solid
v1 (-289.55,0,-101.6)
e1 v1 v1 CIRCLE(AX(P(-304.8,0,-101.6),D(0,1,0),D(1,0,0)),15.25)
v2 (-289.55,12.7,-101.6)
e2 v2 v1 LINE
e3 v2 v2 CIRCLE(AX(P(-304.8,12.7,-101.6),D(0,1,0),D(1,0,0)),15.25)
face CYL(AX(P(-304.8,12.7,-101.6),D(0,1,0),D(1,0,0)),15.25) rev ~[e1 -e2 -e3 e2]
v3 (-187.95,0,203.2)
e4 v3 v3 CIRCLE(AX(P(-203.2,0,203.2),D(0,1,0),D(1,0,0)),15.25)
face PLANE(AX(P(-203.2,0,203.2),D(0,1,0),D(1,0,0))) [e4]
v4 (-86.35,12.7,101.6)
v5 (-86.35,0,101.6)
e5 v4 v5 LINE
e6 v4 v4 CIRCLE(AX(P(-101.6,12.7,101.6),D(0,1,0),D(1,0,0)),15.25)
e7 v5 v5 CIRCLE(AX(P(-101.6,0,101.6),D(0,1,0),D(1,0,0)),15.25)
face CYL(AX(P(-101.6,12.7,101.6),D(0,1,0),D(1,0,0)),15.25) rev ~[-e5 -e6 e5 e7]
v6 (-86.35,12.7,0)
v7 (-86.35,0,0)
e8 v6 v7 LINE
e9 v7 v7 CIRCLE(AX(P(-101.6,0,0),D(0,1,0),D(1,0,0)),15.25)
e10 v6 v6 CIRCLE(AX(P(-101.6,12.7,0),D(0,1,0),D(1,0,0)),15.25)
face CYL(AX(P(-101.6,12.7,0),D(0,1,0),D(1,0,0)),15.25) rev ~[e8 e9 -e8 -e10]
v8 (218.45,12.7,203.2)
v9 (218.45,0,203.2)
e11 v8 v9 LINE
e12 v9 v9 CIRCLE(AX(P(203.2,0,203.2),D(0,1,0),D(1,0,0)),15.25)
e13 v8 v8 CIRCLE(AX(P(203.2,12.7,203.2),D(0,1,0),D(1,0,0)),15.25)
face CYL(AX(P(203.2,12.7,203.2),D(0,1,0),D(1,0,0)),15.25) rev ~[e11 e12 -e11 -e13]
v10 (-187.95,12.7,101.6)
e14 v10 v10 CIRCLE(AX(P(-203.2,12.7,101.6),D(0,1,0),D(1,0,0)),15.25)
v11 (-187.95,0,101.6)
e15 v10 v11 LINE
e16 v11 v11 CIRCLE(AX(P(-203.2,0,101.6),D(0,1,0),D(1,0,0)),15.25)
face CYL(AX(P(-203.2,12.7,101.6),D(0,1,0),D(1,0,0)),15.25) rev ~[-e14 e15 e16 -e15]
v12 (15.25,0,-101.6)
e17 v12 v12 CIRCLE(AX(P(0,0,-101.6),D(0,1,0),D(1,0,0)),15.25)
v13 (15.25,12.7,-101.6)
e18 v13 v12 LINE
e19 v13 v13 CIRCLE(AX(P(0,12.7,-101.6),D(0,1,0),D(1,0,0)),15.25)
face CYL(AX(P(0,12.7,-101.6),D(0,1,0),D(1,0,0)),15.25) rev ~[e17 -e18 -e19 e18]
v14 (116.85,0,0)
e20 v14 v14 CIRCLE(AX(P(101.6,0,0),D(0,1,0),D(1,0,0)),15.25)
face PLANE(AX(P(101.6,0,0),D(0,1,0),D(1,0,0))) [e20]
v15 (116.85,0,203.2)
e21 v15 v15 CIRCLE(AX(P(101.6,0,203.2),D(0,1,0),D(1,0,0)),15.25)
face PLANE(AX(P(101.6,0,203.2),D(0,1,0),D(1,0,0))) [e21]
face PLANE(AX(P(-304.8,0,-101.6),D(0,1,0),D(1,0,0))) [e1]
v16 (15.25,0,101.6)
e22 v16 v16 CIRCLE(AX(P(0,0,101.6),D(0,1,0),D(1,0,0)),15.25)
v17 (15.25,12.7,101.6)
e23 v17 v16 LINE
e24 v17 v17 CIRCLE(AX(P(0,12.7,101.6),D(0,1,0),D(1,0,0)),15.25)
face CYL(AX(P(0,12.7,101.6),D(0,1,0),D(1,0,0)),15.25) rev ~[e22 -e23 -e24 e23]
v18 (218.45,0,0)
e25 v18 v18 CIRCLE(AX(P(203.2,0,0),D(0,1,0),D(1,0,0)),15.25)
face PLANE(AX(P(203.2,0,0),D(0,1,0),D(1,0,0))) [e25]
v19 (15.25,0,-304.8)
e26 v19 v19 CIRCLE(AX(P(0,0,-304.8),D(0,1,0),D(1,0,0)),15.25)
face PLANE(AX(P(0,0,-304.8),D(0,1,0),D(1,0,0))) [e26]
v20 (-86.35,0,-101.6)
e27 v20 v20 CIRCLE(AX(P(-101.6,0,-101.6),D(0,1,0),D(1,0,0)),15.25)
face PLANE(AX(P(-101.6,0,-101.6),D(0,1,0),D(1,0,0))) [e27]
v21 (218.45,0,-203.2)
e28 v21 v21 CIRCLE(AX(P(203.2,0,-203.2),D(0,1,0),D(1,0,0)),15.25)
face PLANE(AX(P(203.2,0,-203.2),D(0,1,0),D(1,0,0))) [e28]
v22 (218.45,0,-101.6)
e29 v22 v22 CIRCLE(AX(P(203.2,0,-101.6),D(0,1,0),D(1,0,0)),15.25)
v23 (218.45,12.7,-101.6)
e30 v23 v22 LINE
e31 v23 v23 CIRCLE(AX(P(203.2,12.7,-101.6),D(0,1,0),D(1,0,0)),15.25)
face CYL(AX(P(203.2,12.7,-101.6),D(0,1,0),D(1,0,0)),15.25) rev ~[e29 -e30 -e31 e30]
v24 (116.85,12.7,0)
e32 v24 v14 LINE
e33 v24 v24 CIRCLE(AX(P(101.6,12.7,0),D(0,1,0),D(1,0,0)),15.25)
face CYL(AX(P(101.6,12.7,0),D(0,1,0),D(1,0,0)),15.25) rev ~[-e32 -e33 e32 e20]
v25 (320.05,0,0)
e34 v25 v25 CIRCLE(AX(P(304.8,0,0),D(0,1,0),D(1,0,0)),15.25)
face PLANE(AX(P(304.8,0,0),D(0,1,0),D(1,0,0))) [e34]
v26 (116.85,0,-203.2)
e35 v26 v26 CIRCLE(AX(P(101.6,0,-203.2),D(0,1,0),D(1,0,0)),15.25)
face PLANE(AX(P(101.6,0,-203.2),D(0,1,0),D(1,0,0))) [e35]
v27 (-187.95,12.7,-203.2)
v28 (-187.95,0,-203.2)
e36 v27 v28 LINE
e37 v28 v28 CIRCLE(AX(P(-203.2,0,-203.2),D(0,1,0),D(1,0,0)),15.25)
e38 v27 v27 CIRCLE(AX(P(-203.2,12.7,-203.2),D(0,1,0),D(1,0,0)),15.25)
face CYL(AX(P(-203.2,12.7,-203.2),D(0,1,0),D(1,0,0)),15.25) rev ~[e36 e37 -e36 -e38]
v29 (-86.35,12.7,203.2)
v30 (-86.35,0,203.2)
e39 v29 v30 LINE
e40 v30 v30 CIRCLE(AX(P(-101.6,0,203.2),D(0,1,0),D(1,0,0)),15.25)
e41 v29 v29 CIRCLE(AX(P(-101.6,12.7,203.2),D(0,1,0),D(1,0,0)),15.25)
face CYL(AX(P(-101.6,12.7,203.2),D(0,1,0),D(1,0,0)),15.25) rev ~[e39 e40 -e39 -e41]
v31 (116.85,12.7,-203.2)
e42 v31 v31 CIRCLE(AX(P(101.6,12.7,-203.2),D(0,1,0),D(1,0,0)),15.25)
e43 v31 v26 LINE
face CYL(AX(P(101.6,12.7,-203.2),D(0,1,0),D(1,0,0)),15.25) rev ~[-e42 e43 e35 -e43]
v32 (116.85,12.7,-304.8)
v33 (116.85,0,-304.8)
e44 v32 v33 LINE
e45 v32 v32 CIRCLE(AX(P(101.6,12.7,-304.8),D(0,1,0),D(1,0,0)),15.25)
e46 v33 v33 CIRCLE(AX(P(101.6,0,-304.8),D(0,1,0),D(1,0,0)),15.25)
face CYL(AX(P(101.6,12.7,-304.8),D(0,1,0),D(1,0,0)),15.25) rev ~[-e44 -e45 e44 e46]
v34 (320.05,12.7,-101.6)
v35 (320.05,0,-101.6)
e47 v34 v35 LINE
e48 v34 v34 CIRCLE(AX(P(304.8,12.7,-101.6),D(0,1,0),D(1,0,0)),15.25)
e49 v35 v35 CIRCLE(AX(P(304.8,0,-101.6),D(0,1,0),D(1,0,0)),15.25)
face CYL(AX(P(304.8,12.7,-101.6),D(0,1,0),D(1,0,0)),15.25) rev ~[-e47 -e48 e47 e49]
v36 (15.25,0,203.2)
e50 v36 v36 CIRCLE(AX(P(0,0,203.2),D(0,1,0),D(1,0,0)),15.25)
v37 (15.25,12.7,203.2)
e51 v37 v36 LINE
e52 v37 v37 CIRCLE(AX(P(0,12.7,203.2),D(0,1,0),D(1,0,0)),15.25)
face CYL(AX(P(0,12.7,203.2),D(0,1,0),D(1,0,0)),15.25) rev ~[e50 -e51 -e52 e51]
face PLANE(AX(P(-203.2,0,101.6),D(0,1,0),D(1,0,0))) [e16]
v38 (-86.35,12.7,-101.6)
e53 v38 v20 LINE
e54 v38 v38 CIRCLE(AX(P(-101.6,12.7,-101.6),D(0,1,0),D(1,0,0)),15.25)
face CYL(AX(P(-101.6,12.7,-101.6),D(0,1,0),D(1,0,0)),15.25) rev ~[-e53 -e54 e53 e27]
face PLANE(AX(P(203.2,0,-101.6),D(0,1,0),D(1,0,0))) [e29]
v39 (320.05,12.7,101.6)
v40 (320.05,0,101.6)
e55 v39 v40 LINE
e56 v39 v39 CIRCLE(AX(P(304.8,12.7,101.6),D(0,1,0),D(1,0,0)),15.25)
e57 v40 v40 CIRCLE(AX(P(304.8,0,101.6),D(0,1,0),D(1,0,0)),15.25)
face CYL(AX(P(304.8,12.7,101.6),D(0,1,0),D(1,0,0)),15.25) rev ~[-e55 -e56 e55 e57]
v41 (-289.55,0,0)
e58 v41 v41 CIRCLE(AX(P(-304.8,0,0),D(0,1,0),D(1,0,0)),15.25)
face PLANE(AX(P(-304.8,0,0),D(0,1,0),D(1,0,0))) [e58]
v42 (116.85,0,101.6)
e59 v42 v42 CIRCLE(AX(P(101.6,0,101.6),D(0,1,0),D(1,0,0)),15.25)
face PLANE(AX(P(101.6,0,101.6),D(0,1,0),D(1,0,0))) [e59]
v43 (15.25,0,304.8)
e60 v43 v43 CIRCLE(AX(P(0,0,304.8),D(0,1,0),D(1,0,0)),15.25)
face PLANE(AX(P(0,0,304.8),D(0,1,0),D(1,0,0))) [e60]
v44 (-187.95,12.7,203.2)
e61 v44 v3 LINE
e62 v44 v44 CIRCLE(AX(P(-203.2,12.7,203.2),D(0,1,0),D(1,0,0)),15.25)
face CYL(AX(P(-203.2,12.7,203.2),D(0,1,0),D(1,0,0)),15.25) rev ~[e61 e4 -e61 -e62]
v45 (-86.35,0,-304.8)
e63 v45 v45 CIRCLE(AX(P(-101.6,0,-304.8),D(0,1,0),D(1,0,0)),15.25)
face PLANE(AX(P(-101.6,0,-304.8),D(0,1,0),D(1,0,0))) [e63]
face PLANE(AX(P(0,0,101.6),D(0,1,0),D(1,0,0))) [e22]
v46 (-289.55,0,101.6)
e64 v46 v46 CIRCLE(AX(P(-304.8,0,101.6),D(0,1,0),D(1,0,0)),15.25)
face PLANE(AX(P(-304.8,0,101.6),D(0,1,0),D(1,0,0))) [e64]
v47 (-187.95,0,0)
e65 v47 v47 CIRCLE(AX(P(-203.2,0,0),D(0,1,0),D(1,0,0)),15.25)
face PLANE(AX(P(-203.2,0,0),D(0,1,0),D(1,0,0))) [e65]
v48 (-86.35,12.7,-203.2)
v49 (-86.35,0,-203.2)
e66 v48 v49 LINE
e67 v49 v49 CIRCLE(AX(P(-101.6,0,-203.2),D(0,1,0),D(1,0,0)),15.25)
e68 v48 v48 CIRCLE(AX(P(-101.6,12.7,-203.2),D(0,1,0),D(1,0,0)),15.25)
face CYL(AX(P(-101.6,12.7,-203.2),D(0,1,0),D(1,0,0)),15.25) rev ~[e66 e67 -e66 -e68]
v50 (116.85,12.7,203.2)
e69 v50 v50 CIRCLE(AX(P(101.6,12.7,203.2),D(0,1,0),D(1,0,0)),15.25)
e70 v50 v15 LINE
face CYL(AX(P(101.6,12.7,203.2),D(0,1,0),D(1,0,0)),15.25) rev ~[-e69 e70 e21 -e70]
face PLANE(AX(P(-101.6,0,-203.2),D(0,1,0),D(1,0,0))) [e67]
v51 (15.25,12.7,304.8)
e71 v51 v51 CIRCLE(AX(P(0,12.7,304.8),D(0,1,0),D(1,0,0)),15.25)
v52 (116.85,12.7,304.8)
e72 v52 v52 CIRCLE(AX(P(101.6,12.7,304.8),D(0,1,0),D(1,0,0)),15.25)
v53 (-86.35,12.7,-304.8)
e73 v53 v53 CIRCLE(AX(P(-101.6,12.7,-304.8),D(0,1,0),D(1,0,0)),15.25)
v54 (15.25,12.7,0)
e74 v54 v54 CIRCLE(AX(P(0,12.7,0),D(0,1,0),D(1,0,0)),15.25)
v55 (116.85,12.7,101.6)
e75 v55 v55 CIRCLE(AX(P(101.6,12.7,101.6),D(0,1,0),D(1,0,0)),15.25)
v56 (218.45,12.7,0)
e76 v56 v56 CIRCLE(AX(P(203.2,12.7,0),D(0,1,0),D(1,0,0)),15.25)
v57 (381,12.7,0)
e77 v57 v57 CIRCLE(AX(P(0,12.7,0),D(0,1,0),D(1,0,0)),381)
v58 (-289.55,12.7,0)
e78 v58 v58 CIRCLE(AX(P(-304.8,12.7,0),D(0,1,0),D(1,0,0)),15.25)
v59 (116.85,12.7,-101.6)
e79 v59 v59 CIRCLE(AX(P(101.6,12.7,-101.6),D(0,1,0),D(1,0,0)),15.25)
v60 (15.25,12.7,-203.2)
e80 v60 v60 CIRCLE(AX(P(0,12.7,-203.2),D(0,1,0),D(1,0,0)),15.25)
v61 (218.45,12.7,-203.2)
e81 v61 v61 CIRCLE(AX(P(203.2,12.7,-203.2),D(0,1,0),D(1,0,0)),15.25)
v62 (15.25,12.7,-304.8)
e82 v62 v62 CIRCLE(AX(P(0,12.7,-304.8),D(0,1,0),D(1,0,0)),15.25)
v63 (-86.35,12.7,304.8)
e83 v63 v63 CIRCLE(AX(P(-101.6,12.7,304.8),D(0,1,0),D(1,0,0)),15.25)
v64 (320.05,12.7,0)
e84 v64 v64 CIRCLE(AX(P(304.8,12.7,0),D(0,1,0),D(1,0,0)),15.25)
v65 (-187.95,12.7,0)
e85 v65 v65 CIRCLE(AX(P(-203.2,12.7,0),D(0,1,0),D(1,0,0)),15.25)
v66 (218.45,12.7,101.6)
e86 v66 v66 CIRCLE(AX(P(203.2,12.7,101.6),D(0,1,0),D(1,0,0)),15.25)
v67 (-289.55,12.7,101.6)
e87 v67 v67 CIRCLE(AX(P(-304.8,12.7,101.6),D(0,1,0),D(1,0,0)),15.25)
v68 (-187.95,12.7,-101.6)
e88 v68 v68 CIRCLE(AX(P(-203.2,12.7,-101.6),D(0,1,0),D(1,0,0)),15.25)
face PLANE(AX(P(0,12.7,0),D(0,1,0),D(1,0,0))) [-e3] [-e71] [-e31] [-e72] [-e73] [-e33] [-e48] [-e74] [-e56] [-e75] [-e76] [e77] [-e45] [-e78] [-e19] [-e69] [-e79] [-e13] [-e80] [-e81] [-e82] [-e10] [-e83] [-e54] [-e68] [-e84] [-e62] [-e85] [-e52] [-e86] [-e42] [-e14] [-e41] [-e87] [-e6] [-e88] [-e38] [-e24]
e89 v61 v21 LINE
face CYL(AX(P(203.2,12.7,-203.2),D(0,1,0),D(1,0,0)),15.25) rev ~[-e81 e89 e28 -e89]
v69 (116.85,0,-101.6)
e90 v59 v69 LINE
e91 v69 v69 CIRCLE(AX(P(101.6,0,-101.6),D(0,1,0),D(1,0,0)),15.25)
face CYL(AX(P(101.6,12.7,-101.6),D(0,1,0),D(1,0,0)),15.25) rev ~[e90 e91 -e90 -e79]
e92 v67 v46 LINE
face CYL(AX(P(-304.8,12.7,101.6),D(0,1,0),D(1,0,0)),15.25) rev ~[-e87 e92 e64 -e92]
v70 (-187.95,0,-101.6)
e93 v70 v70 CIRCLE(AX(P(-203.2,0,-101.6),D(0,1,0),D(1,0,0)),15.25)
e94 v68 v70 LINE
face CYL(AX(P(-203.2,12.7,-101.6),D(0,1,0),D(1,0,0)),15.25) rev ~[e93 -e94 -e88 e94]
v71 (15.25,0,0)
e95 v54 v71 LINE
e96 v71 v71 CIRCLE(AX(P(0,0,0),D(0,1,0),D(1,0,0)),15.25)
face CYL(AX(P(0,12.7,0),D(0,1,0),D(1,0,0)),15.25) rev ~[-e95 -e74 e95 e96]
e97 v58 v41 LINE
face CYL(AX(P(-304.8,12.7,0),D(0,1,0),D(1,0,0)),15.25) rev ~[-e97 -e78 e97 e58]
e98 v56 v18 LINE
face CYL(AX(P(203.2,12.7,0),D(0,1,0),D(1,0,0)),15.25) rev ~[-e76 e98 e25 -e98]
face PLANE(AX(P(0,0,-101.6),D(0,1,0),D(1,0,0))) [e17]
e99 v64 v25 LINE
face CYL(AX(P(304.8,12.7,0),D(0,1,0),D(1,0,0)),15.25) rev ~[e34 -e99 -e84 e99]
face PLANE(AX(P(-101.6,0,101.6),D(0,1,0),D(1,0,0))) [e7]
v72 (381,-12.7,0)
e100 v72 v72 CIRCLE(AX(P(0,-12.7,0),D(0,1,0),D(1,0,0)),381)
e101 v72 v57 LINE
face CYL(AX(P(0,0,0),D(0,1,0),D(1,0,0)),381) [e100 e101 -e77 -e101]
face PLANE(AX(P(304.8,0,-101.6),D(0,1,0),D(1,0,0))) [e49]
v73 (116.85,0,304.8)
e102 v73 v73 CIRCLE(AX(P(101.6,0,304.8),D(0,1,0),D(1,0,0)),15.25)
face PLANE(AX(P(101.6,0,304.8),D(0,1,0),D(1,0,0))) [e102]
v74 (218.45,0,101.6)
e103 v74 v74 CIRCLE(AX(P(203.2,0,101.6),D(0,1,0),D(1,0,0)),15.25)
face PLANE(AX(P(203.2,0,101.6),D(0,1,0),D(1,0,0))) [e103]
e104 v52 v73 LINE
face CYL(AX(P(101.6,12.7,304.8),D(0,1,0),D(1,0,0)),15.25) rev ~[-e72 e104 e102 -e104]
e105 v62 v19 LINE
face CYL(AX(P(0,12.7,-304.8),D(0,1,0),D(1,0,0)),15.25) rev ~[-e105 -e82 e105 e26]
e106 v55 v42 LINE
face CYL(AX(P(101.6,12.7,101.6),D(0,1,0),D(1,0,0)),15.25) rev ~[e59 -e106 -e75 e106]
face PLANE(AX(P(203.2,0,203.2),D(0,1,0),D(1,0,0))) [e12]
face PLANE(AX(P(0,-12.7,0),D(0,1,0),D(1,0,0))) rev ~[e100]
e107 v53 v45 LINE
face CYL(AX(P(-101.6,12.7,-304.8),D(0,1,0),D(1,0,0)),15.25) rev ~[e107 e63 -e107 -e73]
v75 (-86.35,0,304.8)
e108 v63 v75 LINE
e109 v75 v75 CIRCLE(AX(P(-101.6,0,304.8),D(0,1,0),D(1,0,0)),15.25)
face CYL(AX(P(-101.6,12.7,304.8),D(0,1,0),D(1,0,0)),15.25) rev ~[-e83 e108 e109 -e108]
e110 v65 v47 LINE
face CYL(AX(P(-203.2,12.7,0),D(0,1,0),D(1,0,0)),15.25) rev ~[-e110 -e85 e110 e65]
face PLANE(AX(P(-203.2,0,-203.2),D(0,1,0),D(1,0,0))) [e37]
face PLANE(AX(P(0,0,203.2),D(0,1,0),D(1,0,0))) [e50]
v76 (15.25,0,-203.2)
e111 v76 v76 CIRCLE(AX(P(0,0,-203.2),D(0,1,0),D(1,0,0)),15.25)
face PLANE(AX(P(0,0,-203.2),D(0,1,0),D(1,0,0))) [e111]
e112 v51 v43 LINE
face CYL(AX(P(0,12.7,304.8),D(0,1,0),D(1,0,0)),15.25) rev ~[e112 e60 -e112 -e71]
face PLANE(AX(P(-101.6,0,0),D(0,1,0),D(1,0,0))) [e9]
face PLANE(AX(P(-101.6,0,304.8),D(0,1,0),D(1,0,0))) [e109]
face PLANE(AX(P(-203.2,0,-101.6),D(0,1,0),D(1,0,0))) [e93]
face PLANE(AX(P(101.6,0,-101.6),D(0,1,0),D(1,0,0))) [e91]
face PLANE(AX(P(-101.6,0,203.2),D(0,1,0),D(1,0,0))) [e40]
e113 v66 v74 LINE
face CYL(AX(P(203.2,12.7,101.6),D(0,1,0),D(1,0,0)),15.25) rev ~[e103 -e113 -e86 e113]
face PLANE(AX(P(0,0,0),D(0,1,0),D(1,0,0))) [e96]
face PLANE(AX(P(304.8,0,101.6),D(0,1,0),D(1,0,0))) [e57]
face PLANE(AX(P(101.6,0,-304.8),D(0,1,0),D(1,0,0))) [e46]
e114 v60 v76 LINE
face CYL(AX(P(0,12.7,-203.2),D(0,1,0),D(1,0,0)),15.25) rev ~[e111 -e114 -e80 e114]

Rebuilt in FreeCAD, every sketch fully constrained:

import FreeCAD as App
import Part
import Sketcher

V = App.Vector
Q = App.Units.Quantity

doc = App.newDocument("Part")
body = doc.addObject("PartDesign::Body", "Body")

# Sketch on XZ plane
sketch1 = body.newObject("Sketcher::SketchObject", "Sketch")
sketch1.AttachmentSupport = (doc.getObject("XZ_Plane"), [""])
sketch1.MapMode = "FlatFace"
sketch1.addGeometry(Part.Circle(V(0, 0, 0), V(0, 0, 1), 381), False)
sketch1.addConstraint([
    Sketcher.Constraint("Coincident", 0, 3, -1, 1),
    Sketcher.Constraint("Diameter", 0, Q("30 in")),
])
pad1 = body.newObject("PartDesign::Pad", "Pad")
pad1.Profile = sketch1
pad1.Length = Q("1 in")
pad1.Midplane = True

# Sketch on XZ plane
sketch2 = body.newObject("Sketcher::SketchObject", "Sketch001")
sketch2.AttachmentSupport = (doc.getObject("XZ_Plane"), [""])
sketch2.MapMode = "FlatFace"
sketch2.AttachmentOffset = App.Placement(V(0, 0, -0.5 * 25.4), App.Rotation())
sketch2.addGeometry([
    Part.Circle(V(0, 0, 0), V(0, 0, 1), 15),  # 0
    Part.Circle(V(-102, 0, 0), V(0, 0, 1), 15),  # 1
    Part.Circle(V(102, 0, 0), V(0, 0, 1), 15),  # 2
    Part.Circle(V(-102, -102, 0), V(0, 0, 1), 15),  # 3
    Part.Circle(V(0, -102, 0), V(0, 0, 1), 15),  # 4
    Part.Circle(V(102, -102, 0), V(0, 0, 1), 15),  # 5
    Part.Circle(V(-102, 102, 0), V(0, 0, 1), 15),  # 6
    Part.Circle(V(0, 102, 0), V(0, 0, 1), 15),  # 7
    Part.Circle(V(102, 102, 0), V(0, 0, 1), 15),  # 8
    Part.Circle(V(102, -203, 0), V(0, 0, 1), 15),  # 9
    Part.Circle(V(0, -203, 0), V(0, 0, 1), 15),  # 10
    Part.Circle(V(-102, -203, 0), V(0, 0, 1), 15),  # 11
    Part.Circle(V(102, -305, 0), V(0, 0, 1), 15),  # 12
    Part.Circle(V(0, -305, 0), V(0, 0, 1), 15),  # 13
    Part.Circle(V(-102, -305, 0), V(0, 0, 1), 15),  # 14
    Part.Circle(V(102, 203, 0), V(0, 0, 1), 15),  # 15
    Part.Circle(V(0, 203, 0), V(0, 0, 1), 15),  # 16
    Part.Circle(V(-102, 203, 0), V(0, 0, 1), 15),  # 17
    Part.Circle(V(102, 305, 0), V(0, 0, 1), 15),  # 18
    Part.Circle(V(0, 305, 0), V(0, 0, 1), 15),  # 19
    Part.Circle(V(-102, 305, 0), V(0, 0, 1), 15),  # 20
    Part.Circle(V(203, 102, 0), V(0, 0, 1), 15),  # 21
    Part.Circle(V(203, 0, 0), V(0, 0, 1), 15),  # 22
    Part.Circle(V(203, -102, 0), V(0, 0, 1), 15),  # 23
    Part.Circle(V(305, 102, 0), V(0, 0, 1), 15),  # 24
    Part.Circle(V(305, 0, 0), V(0, 0, 1), 15),  # 25
    Part.Circle(V(305, -102, 0), V(0, 0, 1), 15),  # 26
    Part.Circle(V(-203, -102, 0), V(0, 0, 1), 15),  # 27
    Part.Circle(V(-203, 0, 0), V(0, 0, 1), 15),  # 28
    Part.Circle(V(-203, 102, 0), V(0, 0, 1), 15),  # 29
    Part.Circle(V(-305, -102, 0), V(0, 0, 1), 15),  # 30
    Part.Circle(V(-305, 0, 0), V(0, 0, 1), 15),  # 31
    Part.Circle(V(-305, 102, 0), V(0, 0, 1), 15),  # 32
    Part.Circle(V(-203, -203, 0), V(0, 0, 1), 15),  # 33
    Part.Circle(V(203, -203, 0), V(0, 0, 1), 15),  # 34
    Part.Circle(V(203, 203, 0), V(0, 0, 1), 15),  # 35
    Part.Circle(V(-203, 203, 0), V(0, 0, 1), 15),  # 36
], False)
sketch2.addConstraint([
    Sketcher.Constraint("Coincident", 0, 3, -1, 1),
    Sketcher.Constraint("Equal", 0, 1),
    Sketcher.Constraint("Equal", 1, 2),
    Sketcher.Constraint("Equal", 2, 3),
    Sketcher.Constraint("Equal", 3, 4),
    Sketcher.Constraint("Equal", 4, 5),
    Sketcher.Constraint("Equal", 5, 6),
    Sketcher.Constraint("Equal", 6, 7),
    Sketcher.Constraint("Equal", 7, 8),
    Sketcher.Constraint("Equal", 8, 9),
    Sketcher.Constraint("Equal", 9, 10),
    Sketcher.Constraint("Equal", 10, 11),
    Sketcher.Constraint("Equal", 11, 12),
    Sketcher.Constraint("Equal", 12, 13),
    Sketcher.Constraint("Equal", 13, 14),
    Sketcher.Constraint("Equal", 14, 15),
    Sketcher.Constraint("Equal", 15, 16),
    Sketcher.Constraint("Equal", 16, 17),
    Sketcher.Constraint("Equal", 17, 18),
    Sketcher.Constraint("Equal", 18, 19),
    Sketcher.Constraint("Equal", 19, 20),
    Sketcher.Constraint("Equal", 20, 21),
    Sketcher.Constraint("Equal", 21, 22),
    Sketcher.Constraint("Equal", 22, 23),
    Sketcher.Constraint("Equal", 23, 24),
    Sketcher.Constraint("Equal", 24, 25),
    Sketcher.Constraint("Equal", 25, 26),
    Sketcher.Constraint("Equal", 26, 27),
    Sketcher.Constraint("Equal", 27, 28),
    Sketcher.Constraint("Equal", 28, 29),
    Sketcher.Constraint("Equal", 29, 30),
    Sketcher.Constraint("Equal", 30, 31),
    Sketcher.Constraint("Equal", 31, 32),
    Sketcher.Constraint("Equal", 32, 33),
    Sketcher.Constraint("Equal", 33, 34),
    Sketcher.Constraint("Equal", 34, 35),
    Sketcher.Constraint("Equal", 35, 36),
    Sketcher.Constraint("Symmetric", 1, 3, 2, 3, -1, 1),
    Sketcher.Constraint("Symmetric", 5, 3, 6, 3, -1, 1),
    Sketcher.Constraint("Symmetric", 4, 3, 7, 3, -1, 1),
    Sketcher.Constraint("Symmetric", 3, 3, 8, 3, -1, 1),
    Sketcher.Constraint("Symmetric", 11, 3, 15, 3, -1, 1),
    Sketcher.Constraint("Symmetric", 10, 3, 16, 3, -1, 1),
    Sketcher.Constraint("Symmetric", 9, 3, 17, 3, -1, 1),
    Sketcher.Constraint("Symmetric", 14, 3, 18, 3, -1, 1),
    Sketcher.Constraint("Symmetric", 13, 3, 19, 3, -1, 1),
    Sketcher.Constraint("Symmetric", 12, 3, 20, 3, -1, 1),
    Sketcher.Constraint("Symmetric", 21, 3, 27, 3, -1, 1),
    Sketcher.Constraint("Symmetric", 22, 3, 28, 3, -1, 1),
    Sketcher.Constraint("Symmetric", 23, 3, 29, 3, -1, 1),
    Sketcher.Constraint("Symmetric", 24, 3, 30, 3, -1, 1),
    Sketcher.Constraint("Symmetric", 25, 3, 31, 3, -1, 1),
    Sketcher.Constraint("Symmetric", 26, 3, 32, 3, -1, 1),
    Sketcher.Constraint("Symmetric", 33, 3, 35, 3, -1, 1),
    Sketcher.Constraint("Symmetric", 34, 3, 36, 3, -1, 1),
    Sketcher.Constraint("Symmetric", 3, 3, 5, 3, -2),
    Sketcher.Constraint("Symmetric", 9, 3, 11, 3, -2),
    Sketcher.Constraint("Symmetric", 12, 3, 14, 3, -2),
    Sketcher.Constraint("Symmetric", 23, 3, 27, 3, -2),
    Sketcher.Constraint("Symmetric", 26, 3, 30, 3, -2),
    Sketcher.Constraint("Symmetric", 33, 3, 34, 3, -2),
    Sketcher.Constraint("PointOnObject", 1, 3, -1),
    Sketcher.Constraint("PointOnObject", 4, 3, -2),
    Sketcher.Constraint("PointOnObject", 10, 3, -2),
    Sketcher.Constraint("PointOnObject", 13, 3, -2),
    Sketcher.Constraint("PointOnObject", 22, 3, -1),
    Sketcher.Constraint("PointOnObject", 25, 3, -1),
    Sketcher.Constraint("Horizontal", 3, 3, 4, 3),
    Sketcher.Constraint("Horizontal", 9, 3, 10, 3),
    Sketcher.Constraint("Horizontal", 12, 3, 13, 3),
    Sketcher.Constraint("Horizontal", 8, 3, 21, 3),
    Sketcher.Constraint("Horizontal", 21, 3, 24, 3),
    Sketcher.Constraint("Horizontal", 11, 3, 33, 3),
    Sketcher.Constraint("Vertical", 1, 3, 3, 3),
    Sketcher.Constraint("Vertical", 8, 3, 9, 3),
    Sketcher.Constraint("Vertical", 9, 3, 12, 3),
    Sketcher.Constraint("Vertical", 21, 3, 22, 3),
    Sketcher.Constraint("Vertical", 24, 3, 25, 3),
    Sketcher.Constraint("Vertical", 29, 3, 33, 3),
    Sketcher.Constraint("DistanceX", 1, 3, -1, 1, Q("4 in")),
    Sketcher.Constraint("DistanceY", 3, 3, -1, 1, Q("4 in")),
    Sketcher.Constraint("DistanceY", 9, 3, -1, 1, Q("8 in")),
    Sketcher.Constraint("DistanceY", 12, 3, -1, 1, Q("12 in")),
    Sketcher.Constraint("DistanceX", -1, 1, 21, 3, Q("8 in")),
    Sketcher.Constraint("DistanceX", -1, 1, 24, 3, Q("12 in")),
    Sketcher.Constraint("Diameter", 0, 30.5),
])
pocket1 = body.newObject("PartDesign::Pocket", "Pocket")
pocket1.Profile = sketch2
pocket1.Length = Q("0.5 in")
pocket1.Reversed = True

doc.recompute()
